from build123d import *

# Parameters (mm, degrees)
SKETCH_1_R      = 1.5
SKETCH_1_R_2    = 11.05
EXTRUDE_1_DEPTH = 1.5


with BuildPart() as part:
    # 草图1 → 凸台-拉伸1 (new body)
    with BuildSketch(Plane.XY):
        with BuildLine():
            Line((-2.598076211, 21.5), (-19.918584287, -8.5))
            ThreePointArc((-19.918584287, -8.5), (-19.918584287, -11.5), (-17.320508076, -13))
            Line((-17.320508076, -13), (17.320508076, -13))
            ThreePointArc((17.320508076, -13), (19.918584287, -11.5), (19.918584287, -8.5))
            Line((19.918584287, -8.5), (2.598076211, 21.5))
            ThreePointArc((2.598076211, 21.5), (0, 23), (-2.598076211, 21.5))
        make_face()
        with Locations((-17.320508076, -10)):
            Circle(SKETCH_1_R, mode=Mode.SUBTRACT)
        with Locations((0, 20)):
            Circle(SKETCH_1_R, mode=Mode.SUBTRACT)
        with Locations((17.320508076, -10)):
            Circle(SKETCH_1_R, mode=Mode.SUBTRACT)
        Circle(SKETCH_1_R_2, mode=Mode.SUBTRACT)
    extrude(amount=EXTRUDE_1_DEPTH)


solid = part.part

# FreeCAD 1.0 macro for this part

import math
import FreeCAD as App
import Part
import Sketcher
from FreeCAD import Vector
Q = App.Units.Quantity

doc = App.newDocument("Part")
body = doc.addObject("PartDesign::Body", "Body")

sketch1 = doc.addObject("Sketcher::SketchObject", "Sketch")
body.addObject(sketch1)
sketch1.AttachmentSupport = (doc.XY_Plane, [""])
sketch1.MapMode = "FlatFace"
sketch1.addGeometry([
    Part.LineSegment(Vector(-2.6, 21.5, 0), Vector(-19.9, -8.5, 0)),
    Part.ArcOfCircle(Part.Circle(Vector(-17.3, -10, 0), Vector(0, 0, 1), 3), math.radians(150), math.radians(270)),
    Part.LineSegment(Vector(-17.3, -13, 0), Vector(17.3, -13, 0)),
    Part.ArcOfCircle(Part.Circle(Vector(17.3, -10, 0), Vector(0, 0, 1), 3), math.radians(-90), math.radians(30)),
    Part.LineSegment(Vector(19.9, -8.5, 0), Vector(2.6, 21.5, 0)),
    Part.ArcOfCircle(Part.Circle(Vector(0, 20, 0), Vector(0, 0, 1), 3), math.radians(30), math.radians(150)),
    Part.Circle(Vector(-17.3, -10, 0), Vector(0, 0, 1), 1.5),
    Part.Circle(Vector(17.3, -10, 0), Vector(0, 0, 1), 1.5),
    Part.Circle(Vector(0, 0, 0), Vector(0, 0, 1), 11.1),
    Part.Circle(Vector(0, 20, 0), Vector(0, 0, 1), 1.5),
], False)
sketch1.addConstraint([
    Sketcher.Constraint("Tangent", 0, 2, 1, 1),
    Sketcher.Constraint("Tangent", 1, 2, 2, 1),
    Sketcher.Constraint("Tangent", 2, 2, 3, 1),
    Sketcher.Constraint("Tangent", 3, 2, 4, 1),
    Sketcher.Constraint("Tangent", 4, 2, 5, 1),
    Sketcher.Constraint("Tangent", 5, 2, 0, 1),
    Sketcher.Constraint("Horizontal", 2),
    Sketcher.Constraint("Coincident", 8, 3, -1, 1),
    Sketcher.Constraint("Coincident", 6, 3, 1, 3),
    Sketcher.Constraint("Coincident", 7, 3, 3, 3),
    Sketcher.Constraint("Coincident", 9, 3, 5, 3),
    Sketcher.Constraint("Equal", 1, 3),
    Sketcher.Constraint("Equal", 3, 5),
    Sketcher.Constraint("Equal", 6, 7),
    Sketcher.Constraint("Equal", 7, 9),
    Sketcher.Constraint("Symmetric", 0, 2, 3, 2, -2),
    Sketcher.Constraint("Diameter", 6, Q("3 mm")),
    Sketcher.Constraint("Radius", 1, Q("3 mm")),
    Sketcher.Constraint("Diameter", 8, Q("22.1 mm")),
    Sketcher.Constraint("Angle", 0, Q("-120 deg")),
    Sketcher.Constraint("DistanceY", 1, 3, -1, 1, Q("10 mm")),
    Sketcher.Constraint("DistanceY", -1, 1, 5, 3, Q("20 mm")),
])
pad1 = doc.addObject("PartDesign::Pad", "Pad")
body.addObject(pad1)
pad1.Profile = sketch1
pad1.Length = 1.5

doc.recompute()
